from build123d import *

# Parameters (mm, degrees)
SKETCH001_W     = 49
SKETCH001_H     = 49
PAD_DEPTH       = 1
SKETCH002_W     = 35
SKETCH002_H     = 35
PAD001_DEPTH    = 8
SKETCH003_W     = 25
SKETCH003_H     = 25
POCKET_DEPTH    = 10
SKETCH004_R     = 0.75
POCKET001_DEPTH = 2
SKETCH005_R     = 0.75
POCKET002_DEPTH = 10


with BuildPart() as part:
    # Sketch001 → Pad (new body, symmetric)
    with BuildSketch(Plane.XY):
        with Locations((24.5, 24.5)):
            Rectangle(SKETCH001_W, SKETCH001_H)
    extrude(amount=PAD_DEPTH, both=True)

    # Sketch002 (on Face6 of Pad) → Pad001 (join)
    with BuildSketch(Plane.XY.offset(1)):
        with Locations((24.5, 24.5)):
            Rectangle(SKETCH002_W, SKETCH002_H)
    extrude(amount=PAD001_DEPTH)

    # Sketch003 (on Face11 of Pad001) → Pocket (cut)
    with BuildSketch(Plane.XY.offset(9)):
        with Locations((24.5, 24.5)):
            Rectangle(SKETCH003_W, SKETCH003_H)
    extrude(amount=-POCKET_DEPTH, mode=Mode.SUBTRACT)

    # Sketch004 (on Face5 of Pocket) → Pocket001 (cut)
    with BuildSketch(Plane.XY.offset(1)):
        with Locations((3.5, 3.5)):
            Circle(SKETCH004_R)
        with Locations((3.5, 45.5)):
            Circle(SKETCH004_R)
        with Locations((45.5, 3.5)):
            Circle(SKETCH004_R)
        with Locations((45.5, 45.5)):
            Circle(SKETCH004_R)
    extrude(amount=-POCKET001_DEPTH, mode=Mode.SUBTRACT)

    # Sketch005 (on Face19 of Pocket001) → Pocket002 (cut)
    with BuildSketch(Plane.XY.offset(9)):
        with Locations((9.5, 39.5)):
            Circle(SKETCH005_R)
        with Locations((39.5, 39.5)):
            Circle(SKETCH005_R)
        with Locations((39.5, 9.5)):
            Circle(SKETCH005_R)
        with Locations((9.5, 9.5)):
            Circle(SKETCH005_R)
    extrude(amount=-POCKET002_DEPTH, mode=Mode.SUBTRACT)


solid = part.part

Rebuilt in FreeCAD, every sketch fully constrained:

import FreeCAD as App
import Part
import Sketcher

doc = App.newDocument("Part")
body = doc.addObject("PartDesign::Body", "Body")

sketch1 = doc.addObject("Sketcher::SketchObject", "Sketch")
body.addObject(sketch1)
sketch1.AttachmentSupport = (doc.XY_Plane, [""])
sketch1.MapMode = "FlatFace"
sketch1.addGeometry(Part.LineSegment(App.Vector(0, 49, 0), App.Vector(0, 0, 0)), False)
sketch1.addGeometry(Part.LineSegment(App.Vector(0, 0, 0), App.Vector(49, 0, 0)), False)
sketch1.addGeometry(Part.LineSegment(App.Vector(49, 0, 0), App.Vector(49, 49, 0)), False)
sketch1.addGeometry(Part.LineSegment(App.Vector(49, 49, 0), App.Vector(0, 49, 0)), False)
sketch1.addConstraint(Sketcher.Constraint("Coincident", 0, 2, 1, 1))
sketch1.addConstraint(Sketcher.Constraint("Coincident", 1, 2, 2, 1))
sketch1.addConstraint(Sketcher.Constraint("Coincident", 2, 2, 3, 1))
sketch1.addConstraint(Sketcher.Constraint("Coincident", 3, 2, 0, 1))
sketch1.addConstraint(Sketcher.Constraint("Vertical", 0))
sketch1.addConstraint(Sketcher.Constraint("Horizontal", 1))
sketch1.addConstraint(Sketcher.Constraint("Vertical", 2))
sketch1.addConstraint(Sketcher.Constraint("Horizontal", 3))
sketch1.addConstraint(Sketcher.Constraint("Coincident", 0, 2, -1, 1))
sketch1.addConstraint(Sketcher.Constraint("Equal", 3, 0))
sketch1.addConstraint(Sketcher.Constraint("DistanceX", 1, 1, 1, 2, 49.0))
pad1 = doc.addObject("PartDesign::Pad", "Pad")
body.addObject(pad1)
pad1.Profile = sketch1
pad1.Length = 2
pad1.Midplane = True

sketch2 = doc.addObject("Sketcher::SketchObject", "Sketch001")
body.addObject(sketch2)
sketch2.AttachmentSupport = (doc.XY_Plane, [""])
sketch2.MapMode = "FlatFace"
sketch2.AttachmentOffset = App.Placement(App.Vector(0, 0, 1), App.Rotation())
sketch2.addGeometry(Part.LineSegment(App.Vector(7, 42, 0), App.Vector(7, 7, 0)), False)
sketch2.addGeometry(Part.LineSegment(App.Vector(7, 7, 0), App.Vector(42, 7, 0)), False)
sketch2.addGeometry(Part.LineSegment(App.Vector(42, 7, 0), App.Vector(42, 42, 0)), False)
sketch2.addGeometry(Part.LineSegment(App.Vector(42, 42, 0), App.Vector(7, 42, 0)), False)
sketch2.addConstraint(Sketcher.Constraint("Coincident", 0, 2, 1, 1))
sketch2.addConstraint(Sketcher.Constraint("Coincident", 1, 2, 2, 1))
sketch2.addConstraint(Sketcher.Constraint("Coincident", 2, 2, 3, 1))
sketch2.addConstraint(Sketcher.Constraint("Coincident", 3, 2, 0, 1))
sketch2.addConstraint(Sketcher.Constraint("Vertical", 0))
sketch2.addConstraint(Sketcher.Constraint("Horizontal", 1))
sketch2.addConstraint(Sketcher.Constraint("Vertical", 2))
sketch2.addConstraint(Sketcher.Constraint("Horizontal", 3))
sketch2.addConstraint(Sketcher.Constraint("Equal", 3, 0))
sketch2.addConstraint(Sketcher.Constraint("DistanceX", 1, 1, 1, 2, 35.0))
sketch2.addConstraint(Sketcher.Constraint("DistanceX", -1, 1, 0, 2, 7.0))
sketch2.addConstraint(Sketcher.Constraint("DistanceY", -1, 1, 0, 2, 7.0))
pad2 = doc.addObject("PartDesign::Pad", "Pad001")
body.addObject(pad2)
pad2.Profile = sketch2
pad2.Length = 8

sketch3 = doc.addObject("Sketcher::SketchObject", "Sketch002")
body.addObject(sketch3)
sketch3.AttachmentSupport = (doc.XY_Plane, [""])
sketch3.MapMode = "FlatFace"
sketch3.AttachmentOffset = App.Placement(App.Vector(0, 0, 9), App.Rotation())
sketch3.addGeometry(Part.LineSegment(App.Vector(12, 37, 0), App.Vector(12, 12, 0)), False)
sketch3.addGeometry(Part.LineSegment(App.Vector(12, 12, 0), App.Vector(37, 12, 0)), False)
sketch3.addGeometry(Part.LineSegment(App.Vector(37, 12, 0), App.Vector(37, 37, 0)), False)
sketch3.addGeometry(Part.LineSegment(App.Vector(37, 37, 0), App.Vector(12, 37, 0)), False)
sketch3.addConstraint(Sketcher.Constraint("Coincident", 0, 2, 1, 1))
sketch3.addConstraint(Sketcher.Constraint("Coincident", 1, 2, 2, 1))
sketch3.addConstraint(Sketcher.Constraint("Coincident", 2, 2, 3, 1))
sketch3.addConstraint(Sketcher.Constraint("Coincident", 3, 2, 0, 1))
sketch3.addConstraint(Sketcher.Constraint("Vertical", 0))
sketch3.addConstraint(Sketcher.Constraint("Horizontal", 1))
sketch3.addConstraint(Sketcher.Constraint("Vertical", 2))
sketch3.addConstraint(Sketcher.Constraint("Horizontal", 3))
sketch3.addConstraint(Sketcher.Constraint("Equal", 3, 0))
sketch3.addConstraint(Sketcher.Constraint("DistanceX", 1, 1, 1, 2, 25.0))
sketch3.addConstraint(Sketcher.Constraint("DistanceX", -1, 1, 0, 2, 12.0))
sketch3.addConstraint(Sketcher.Constraint("DistanceY", -1, 1, 0, 2, 12.0))
pocket1 = doc.addObject("PartDesign::Pocket", "Pocket")
body.addObject(pocket1)
pocket1.Profile = sketch3
pocket1.Length = 10

sketch4 = doc.addObject("Sketcher::SketchObject", "Sketch003")
body.addObject(sketch4)
sketch4.AttachmentSupport = (doc.XY_Plane, [""])
sketch4.MapMode = "FlatFace"
sketch4.AttachmentOffset = App.Placement(App.Vector(0, 0, 1), App.Rotation())
sketch4.addGeometry(Part.Circle(App.Vector(3.5, 3.5, 0), App.Vector(0, 0, 1), 0.75), False)
sketch4.addGeometry(Part.Circle(App.Vector(3.5, 45.5, 0), App.Vector(0, 0, 1), 0.75), False)
sketch4.addGeometry(Part.Circle(App.Vector(45.5, 3.5, 0), App.Vector(0, 0, 1), 0.75), False)
sketch4.addGeometry(Part.Circle(App.Vector(45.5, 45.5, 0), App.Vector(0, 0, 1), 0.75), False)
sketch4.addConstraint(Sketcher.Constraint("Equal", 0, 1))
sketch4.addConstraint(Sketcher.Constraint("Equal", 1, 2))
sketch4.addConstraint(Sketcher.Constraint("Equal", 2, 3))
sketch4.addConstraint(Sketcher.Constraint("Horizontal", 0, 3, 2, 3))
sketch4.addConstraint(Sketcher.Constraint("Horizontal", 1, 3, 3, 3))
sketch4.addConstraint(Sketcher.Constraint("Vertical", 0, 3, 1, 3))
sketch4.addConstraint(Sketcher.Constraint("Vertical", 2, 3, 3, 3))
sketch4.addConstraint(Sketcher.Constraint("Diameter", 0, 1.5))
sketch4.addConstraint(Sketcher.Constraint("DistanceY", 0, 3, 1, 3, 42.0))
sketch4.addConstraint(Sketcher.Constraint("DistanceX", 0, 3, 2, 3, 42.0))
sketch4.addConstraint(Sketcher.Constraint("DistanceX", -1, 1, 0, 3, 3.5))
sketch4.addConstraint(Sketcher.Constraint("DistanceY", -1, 1, 0, 3, 3.5))
pocket2 = doc.addObject("PartDesign::Pocket", "Pocket001")
body.addObject(pocket2)
pocket2.Profile = sketch4
pocket2.Length = 2

sketch5 = doc.addObject("Sketcher::SketchObject", "Sketch004")
body.addObject(sketch5)
sketch5.AttachmentSupport = (doc.XY_Plane, [""])
sketch5.MapMode = "FlatFace"
sketch5.AttachmentOffset = App.Placement(App.Vector(0, 0, 9), App.Rotation())
sketch5.addGeometry(Part.Circle(App.Vector(9.5, 39.5, 0), App.Vector(0, 0, 1), 0.75), False)
sketch5.addGeometry(Part.Circle(App.Vector(39.5, 39.5, 0), App.Vector(0, 0, 1), 0.75), False)
sketch5.addGeometry(Part.Circle(App.Vector(39.5, 9.5, 0), App.Vector(0, 0, 1), 0.75), False)
sketch5.addGeometry(Part.Circle(App.Vector(9.5, 9.5, 0), App.Vector(0, 0, 1), 0.75), False)
sketch5.addConstraint(Sketcher.Constraint("Equal", 0, 1))
sketch5.addConstraint(Sketcher.Constraint("Equal", 1, 2))
sketch5.addConstraint(Sketcher.Constraint("Equal", 2, 3))
sketch5.addConstraint(Sketcher.Constraint("Horizontal", 0, 3, 1, 3))
sketch5.addConstraint(Sketcher.Constraint("Horizontal", 2, 3, 3, 3))
sketch5.addConstraint(Sketcher.Constraint("Vertical", 1, 3, 2, 3))
sketch5.addConstraint(Sketcher.Constraint("Vertical", 0, 3, 3, 3))
sketch5.addConstraint(Sketcher.Constraint("Diameter", 0, 1.5))
sketch5.addConstraint(Sketcher.Constraint("DistanceX", 0, 3, 1, 3, 30.0))
sketch5.addConstraint(Sketcher.Constraint("DistanceY", 2, 3, 1, 3, 30.0))
sketch5.addConstraint(Sketcher.Constraint("DistanceX", -1, 1, 0, 3, 9.5))
sketch5.addConstraint(Sketcher.Constraint("DistanceY", -1, 1, 0, 3, 39.5))
pocket3 = doc.addObject("PartDesign::Pocket", "Pocket002")
body.addObject(pocket3)
pocket3.Profile = sketch5
pocket3.Length = 10

doc.recompute()
